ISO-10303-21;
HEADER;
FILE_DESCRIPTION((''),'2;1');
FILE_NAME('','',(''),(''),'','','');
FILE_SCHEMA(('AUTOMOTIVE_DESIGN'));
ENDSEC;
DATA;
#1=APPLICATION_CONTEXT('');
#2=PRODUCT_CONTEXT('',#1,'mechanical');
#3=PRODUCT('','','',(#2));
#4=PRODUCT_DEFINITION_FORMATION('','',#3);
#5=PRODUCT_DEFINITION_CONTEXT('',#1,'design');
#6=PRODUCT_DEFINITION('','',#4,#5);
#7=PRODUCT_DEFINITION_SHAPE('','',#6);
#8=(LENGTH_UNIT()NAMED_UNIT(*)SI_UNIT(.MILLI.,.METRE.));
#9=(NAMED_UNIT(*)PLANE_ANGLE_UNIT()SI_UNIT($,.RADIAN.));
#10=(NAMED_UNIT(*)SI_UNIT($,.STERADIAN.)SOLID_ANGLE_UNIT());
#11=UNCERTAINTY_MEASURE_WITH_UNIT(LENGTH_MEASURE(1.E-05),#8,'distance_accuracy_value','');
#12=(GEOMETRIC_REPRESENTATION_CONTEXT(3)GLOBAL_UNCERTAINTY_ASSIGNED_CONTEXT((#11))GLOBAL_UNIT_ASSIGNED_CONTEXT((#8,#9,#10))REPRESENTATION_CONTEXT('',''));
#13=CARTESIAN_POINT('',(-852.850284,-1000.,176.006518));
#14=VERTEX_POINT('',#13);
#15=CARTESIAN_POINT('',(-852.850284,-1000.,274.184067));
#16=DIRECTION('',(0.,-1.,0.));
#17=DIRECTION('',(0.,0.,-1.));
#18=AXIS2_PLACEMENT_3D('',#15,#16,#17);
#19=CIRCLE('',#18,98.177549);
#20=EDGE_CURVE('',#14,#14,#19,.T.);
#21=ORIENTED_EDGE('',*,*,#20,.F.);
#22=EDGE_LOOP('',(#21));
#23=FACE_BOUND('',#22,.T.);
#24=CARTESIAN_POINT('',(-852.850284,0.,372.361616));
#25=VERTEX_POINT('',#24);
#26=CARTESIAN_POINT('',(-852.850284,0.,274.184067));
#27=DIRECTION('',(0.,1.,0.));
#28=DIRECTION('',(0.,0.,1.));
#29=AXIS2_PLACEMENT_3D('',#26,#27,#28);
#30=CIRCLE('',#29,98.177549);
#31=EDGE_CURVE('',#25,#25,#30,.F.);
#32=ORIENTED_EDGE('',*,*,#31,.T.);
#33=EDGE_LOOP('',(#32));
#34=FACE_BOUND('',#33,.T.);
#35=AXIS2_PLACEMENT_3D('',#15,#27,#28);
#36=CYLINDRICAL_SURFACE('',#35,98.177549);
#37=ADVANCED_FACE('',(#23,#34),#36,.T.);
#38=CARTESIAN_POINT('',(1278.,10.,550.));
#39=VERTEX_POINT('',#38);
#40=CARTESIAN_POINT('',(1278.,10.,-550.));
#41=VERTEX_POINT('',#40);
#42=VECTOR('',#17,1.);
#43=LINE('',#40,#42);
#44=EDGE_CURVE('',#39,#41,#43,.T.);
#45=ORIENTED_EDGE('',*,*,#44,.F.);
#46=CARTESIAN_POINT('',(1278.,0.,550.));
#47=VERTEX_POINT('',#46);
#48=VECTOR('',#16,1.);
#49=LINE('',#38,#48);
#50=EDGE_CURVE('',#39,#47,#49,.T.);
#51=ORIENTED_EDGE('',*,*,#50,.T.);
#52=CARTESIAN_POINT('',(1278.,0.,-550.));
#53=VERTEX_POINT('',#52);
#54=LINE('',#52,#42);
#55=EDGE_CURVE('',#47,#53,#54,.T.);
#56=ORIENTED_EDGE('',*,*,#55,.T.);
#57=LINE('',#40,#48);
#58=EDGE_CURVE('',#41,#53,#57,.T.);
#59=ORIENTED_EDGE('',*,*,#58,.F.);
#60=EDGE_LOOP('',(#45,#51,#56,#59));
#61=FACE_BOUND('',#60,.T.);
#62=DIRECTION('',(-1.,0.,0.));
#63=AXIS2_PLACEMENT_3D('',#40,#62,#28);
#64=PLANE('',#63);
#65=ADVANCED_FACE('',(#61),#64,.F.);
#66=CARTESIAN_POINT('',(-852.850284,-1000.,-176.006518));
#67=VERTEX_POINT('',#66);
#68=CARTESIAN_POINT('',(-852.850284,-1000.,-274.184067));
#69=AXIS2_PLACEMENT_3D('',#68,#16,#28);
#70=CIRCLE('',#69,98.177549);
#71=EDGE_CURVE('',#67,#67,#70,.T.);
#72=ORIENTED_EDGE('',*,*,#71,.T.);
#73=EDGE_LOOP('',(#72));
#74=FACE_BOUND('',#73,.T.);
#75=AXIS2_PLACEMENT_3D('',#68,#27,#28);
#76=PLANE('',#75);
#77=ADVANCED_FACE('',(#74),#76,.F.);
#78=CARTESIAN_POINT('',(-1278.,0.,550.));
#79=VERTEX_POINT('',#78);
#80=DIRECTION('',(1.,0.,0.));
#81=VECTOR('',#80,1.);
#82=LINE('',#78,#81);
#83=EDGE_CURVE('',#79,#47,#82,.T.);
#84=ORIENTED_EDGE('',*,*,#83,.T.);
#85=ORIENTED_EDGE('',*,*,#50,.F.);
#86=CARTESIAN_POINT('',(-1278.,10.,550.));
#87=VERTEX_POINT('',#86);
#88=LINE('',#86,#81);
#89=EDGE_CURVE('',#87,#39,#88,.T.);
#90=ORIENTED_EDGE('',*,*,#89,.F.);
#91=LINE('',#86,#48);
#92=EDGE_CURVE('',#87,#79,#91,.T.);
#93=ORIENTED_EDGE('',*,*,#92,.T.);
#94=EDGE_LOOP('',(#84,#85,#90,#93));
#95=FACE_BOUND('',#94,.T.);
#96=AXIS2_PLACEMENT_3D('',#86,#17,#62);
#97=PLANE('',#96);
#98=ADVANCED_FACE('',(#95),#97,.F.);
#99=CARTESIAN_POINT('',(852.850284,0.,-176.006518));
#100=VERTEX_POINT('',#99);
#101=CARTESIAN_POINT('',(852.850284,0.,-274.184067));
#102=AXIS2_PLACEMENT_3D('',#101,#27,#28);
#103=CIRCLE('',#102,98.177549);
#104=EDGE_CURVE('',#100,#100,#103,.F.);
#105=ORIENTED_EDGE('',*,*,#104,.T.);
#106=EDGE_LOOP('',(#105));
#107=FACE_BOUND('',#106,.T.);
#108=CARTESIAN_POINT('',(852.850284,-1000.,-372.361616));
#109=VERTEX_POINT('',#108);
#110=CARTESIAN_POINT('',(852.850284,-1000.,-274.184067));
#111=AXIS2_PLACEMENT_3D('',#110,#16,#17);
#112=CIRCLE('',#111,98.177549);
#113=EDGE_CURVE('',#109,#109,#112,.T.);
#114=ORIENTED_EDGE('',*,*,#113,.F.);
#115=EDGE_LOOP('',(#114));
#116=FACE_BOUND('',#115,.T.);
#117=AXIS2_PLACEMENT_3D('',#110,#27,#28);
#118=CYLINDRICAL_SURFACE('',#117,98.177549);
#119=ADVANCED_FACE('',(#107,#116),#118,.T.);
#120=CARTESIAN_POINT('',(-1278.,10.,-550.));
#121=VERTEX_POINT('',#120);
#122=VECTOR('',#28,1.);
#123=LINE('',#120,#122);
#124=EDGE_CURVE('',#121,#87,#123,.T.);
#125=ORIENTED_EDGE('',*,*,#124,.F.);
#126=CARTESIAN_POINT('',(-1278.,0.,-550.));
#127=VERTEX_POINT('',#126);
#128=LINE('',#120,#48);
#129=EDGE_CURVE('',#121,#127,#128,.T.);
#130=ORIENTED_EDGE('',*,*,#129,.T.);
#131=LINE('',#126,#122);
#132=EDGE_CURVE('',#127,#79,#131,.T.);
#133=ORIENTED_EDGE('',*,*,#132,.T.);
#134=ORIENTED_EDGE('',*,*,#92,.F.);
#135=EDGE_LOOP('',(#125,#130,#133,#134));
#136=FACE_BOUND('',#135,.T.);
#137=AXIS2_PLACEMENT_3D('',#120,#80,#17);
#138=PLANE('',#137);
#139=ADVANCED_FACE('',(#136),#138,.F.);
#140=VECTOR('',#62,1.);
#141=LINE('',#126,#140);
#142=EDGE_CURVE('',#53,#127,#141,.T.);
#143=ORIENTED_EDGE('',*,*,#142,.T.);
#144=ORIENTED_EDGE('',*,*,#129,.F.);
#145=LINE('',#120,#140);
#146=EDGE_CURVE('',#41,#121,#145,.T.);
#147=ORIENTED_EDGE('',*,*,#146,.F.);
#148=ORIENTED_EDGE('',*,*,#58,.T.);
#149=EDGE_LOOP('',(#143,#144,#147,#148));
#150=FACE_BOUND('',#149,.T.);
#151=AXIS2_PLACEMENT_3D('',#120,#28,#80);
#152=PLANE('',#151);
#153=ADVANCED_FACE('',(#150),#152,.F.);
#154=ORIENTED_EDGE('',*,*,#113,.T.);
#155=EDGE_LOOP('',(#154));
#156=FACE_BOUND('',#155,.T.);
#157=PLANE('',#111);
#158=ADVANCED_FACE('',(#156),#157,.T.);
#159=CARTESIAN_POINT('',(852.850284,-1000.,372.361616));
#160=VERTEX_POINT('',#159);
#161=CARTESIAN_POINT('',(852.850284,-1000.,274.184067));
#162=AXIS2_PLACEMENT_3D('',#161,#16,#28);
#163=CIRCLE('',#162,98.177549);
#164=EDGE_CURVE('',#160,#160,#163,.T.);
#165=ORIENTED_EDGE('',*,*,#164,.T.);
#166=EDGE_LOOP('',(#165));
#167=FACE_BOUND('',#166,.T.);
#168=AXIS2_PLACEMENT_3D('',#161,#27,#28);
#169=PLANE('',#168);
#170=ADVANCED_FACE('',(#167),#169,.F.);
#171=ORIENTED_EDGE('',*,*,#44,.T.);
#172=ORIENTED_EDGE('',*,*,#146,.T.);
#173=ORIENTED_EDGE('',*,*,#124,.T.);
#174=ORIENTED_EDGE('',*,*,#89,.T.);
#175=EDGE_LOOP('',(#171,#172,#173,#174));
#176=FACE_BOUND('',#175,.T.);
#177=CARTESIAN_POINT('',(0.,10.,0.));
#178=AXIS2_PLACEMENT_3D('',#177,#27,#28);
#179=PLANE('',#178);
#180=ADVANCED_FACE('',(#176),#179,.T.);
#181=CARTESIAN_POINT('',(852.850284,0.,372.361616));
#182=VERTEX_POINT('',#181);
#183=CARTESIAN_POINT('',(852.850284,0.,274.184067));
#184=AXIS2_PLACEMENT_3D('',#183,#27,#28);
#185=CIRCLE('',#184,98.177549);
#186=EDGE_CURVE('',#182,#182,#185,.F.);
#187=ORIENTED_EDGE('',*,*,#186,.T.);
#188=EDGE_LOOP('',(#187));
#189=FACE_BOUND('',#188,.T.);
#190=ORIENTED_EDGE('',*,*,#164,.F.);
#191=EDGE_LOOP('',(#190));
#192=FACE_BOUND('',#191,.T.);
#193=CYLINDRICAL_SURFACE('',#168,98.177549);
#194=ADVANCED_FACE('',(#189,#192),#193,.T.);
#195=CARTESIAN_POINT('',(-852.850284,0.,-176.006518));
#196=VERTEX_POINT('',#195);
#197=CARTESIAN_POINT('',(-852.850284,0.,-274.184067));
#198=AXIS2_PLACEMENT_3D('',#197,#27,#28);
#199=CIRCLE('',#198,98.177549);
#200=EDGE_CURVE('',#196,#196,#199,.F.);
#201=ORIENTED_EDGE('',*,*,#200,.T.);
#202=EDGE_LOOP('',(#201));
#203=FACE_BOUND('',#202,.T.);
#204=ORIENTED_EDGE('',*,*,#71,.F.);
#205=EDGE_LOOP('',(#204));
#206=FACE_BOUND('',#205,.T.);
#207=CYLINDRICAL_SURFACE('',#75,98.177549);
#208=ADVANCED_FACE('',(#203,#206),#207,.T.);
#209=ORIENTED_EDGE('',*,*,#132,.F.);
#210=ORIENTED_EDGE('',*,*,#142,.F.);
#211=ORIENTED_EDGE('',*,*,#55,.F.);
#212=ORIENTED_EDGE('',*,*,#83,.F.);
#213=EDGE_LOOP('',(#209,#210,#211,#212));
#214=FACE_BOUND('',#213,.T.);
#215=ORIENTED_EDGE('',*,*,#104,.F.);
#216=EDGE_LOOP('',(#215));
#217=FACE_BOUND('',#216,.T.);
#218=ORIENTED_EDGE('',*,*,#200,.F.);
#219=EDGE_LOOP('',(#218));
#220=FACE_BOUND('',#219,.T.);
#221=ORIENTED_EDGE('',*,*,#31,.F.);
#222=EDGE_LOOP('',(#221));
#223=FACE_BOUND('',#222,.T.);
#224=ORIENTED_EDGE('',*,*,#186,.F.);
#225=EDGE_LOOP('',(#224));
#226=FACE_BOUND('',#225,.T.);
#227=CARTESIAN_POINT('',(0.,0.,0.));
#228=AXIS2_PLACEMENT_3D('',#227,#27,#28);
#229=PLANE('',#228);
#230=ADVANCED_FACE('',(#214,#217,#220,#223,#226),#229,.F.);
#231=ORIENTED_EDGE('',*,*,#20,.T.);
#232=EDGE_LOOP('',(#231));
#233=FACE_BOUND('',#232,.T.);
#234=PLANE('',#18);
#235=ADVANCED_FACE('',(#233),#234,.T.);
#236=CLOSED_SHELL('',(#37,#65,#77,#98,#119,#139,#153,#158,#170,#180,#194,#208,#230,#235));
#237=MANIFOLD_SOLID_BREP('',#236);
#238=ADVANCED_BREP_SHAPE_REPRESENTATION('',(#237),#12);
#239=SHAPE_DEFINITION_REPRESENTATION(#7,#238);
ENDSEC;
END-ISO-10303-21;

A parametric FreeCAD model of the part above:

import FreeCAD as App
import Part
import Sketcher
from FreeCAD import Vector

doc = App.newDocument("Part")
body = doc.addObject("PartDesign::Body", "Body")

# Sketch on XZ plane
sketch1 = body.newObject("Sketcher::SketchObject", "Sketch")
sketch1.AttachmentSupport = (doc.getObject("XZ_Plane"), [""])
sketch1.MapMode = "FlatFace"
sketch1.addGeometry([
    Part.LineSegment(Vector(-1278, -550, 0), Vector(-1278, 550, 0)),
    Part.LineSegment(Vector(-1278, 550, 0), Vector(1278, 550, 0)),
    Part.LineSegment(Vector(1278, 550, 0), Vector(1278, -550, 0)),
    Part.LineSegment(Vector(1278, -550, 0), Vector(-1278, -550, 0)),
], False)
sketch1.addConstraint([
    Sketcher.Constraint("Coincident", 0, 2, 1, 1),
    Sketcher.Constraint("Coincident", 1, 2, 2, 1),
    Sketcher.Constraint("Coincident", 2, 2, 3, 1),
    Sketcher.Constraint("Coincident", 3, 2, 0, 1),
    Sketcher.Constraint("Vertical", 0),
    Sketcher.Constraint("Horizontal", 1),
    Sketcher.Constraint("Vertical", 2),
    Sketcher.Constraint("Horizontal", 3),
    Sketcher.Constraint("Symmetric", 0, 2, 2, 2, -1, 1),
    Sketcher.Constraint("DistanceX", 1, 1, 1, 2, 2556.0),
    Sketcher.Constraint("DistanceY", 0, 1, 0, 2, 1100.0),
])
pad1 = body.newObject("PartDesign::Pad", "Pad")
pad1.Profile = sketch1
pad1.Length = 10
pad1.Reversed = True

# Sketch on XZ plane
sketch2 = body.newObject("Sketcher::SketchObject", "Sketch001")
sketch2.AttachmentSupport = (doc.getObject("XZ_Plane"), [""])
sketch2.MapMode = "FlatFace"
sketch2.addGeometry([
    Part.Circle(Vector(-853, 274, 0), Vector(0, 0, 1), 98),
    Part.Circle(Vector(853, 274, 0), Vector(0, 0, 1), 98),
    Part.Circle(Vector(853, -274, 0), Vector(0, 0, 1), 98),
    Part.Circle(Vector(-853, -274, 0), Vector(0, 0, 1), 98),
], False)
sketch2.addConstraint([
    Sketcher.Constraint("Equal", 0, 1),
    Sketcher.Constraint("Equal", 1, 2),
    Sketcher.Constraint("Equal", 2, 3),
    Sketcher.Constraint("Symmetric", 0, 3, 2, 3, -1, 1),
    Sketcher.Constraint("Symmetric", 1, 3, 3, 3, -1, 1),
    Sketcher.Constraint("Symmetric", 0, 3, 1, 3, -2),
    Sketcher.Constraint("Diameter", 0, 196.355098),
    Sketcher.Constraint("DistanceX", 0, 3, -1, 1, 852.850284),
    Sketcher.Constraint("DistanceY", -1, 1, 0, 3, 274.184067),
])
pad2 = body.newObject("PartDesign::Pad", "Pad001")
pad2.Profile = sketch2
pad2.Length = 1000

doc.recompute()
